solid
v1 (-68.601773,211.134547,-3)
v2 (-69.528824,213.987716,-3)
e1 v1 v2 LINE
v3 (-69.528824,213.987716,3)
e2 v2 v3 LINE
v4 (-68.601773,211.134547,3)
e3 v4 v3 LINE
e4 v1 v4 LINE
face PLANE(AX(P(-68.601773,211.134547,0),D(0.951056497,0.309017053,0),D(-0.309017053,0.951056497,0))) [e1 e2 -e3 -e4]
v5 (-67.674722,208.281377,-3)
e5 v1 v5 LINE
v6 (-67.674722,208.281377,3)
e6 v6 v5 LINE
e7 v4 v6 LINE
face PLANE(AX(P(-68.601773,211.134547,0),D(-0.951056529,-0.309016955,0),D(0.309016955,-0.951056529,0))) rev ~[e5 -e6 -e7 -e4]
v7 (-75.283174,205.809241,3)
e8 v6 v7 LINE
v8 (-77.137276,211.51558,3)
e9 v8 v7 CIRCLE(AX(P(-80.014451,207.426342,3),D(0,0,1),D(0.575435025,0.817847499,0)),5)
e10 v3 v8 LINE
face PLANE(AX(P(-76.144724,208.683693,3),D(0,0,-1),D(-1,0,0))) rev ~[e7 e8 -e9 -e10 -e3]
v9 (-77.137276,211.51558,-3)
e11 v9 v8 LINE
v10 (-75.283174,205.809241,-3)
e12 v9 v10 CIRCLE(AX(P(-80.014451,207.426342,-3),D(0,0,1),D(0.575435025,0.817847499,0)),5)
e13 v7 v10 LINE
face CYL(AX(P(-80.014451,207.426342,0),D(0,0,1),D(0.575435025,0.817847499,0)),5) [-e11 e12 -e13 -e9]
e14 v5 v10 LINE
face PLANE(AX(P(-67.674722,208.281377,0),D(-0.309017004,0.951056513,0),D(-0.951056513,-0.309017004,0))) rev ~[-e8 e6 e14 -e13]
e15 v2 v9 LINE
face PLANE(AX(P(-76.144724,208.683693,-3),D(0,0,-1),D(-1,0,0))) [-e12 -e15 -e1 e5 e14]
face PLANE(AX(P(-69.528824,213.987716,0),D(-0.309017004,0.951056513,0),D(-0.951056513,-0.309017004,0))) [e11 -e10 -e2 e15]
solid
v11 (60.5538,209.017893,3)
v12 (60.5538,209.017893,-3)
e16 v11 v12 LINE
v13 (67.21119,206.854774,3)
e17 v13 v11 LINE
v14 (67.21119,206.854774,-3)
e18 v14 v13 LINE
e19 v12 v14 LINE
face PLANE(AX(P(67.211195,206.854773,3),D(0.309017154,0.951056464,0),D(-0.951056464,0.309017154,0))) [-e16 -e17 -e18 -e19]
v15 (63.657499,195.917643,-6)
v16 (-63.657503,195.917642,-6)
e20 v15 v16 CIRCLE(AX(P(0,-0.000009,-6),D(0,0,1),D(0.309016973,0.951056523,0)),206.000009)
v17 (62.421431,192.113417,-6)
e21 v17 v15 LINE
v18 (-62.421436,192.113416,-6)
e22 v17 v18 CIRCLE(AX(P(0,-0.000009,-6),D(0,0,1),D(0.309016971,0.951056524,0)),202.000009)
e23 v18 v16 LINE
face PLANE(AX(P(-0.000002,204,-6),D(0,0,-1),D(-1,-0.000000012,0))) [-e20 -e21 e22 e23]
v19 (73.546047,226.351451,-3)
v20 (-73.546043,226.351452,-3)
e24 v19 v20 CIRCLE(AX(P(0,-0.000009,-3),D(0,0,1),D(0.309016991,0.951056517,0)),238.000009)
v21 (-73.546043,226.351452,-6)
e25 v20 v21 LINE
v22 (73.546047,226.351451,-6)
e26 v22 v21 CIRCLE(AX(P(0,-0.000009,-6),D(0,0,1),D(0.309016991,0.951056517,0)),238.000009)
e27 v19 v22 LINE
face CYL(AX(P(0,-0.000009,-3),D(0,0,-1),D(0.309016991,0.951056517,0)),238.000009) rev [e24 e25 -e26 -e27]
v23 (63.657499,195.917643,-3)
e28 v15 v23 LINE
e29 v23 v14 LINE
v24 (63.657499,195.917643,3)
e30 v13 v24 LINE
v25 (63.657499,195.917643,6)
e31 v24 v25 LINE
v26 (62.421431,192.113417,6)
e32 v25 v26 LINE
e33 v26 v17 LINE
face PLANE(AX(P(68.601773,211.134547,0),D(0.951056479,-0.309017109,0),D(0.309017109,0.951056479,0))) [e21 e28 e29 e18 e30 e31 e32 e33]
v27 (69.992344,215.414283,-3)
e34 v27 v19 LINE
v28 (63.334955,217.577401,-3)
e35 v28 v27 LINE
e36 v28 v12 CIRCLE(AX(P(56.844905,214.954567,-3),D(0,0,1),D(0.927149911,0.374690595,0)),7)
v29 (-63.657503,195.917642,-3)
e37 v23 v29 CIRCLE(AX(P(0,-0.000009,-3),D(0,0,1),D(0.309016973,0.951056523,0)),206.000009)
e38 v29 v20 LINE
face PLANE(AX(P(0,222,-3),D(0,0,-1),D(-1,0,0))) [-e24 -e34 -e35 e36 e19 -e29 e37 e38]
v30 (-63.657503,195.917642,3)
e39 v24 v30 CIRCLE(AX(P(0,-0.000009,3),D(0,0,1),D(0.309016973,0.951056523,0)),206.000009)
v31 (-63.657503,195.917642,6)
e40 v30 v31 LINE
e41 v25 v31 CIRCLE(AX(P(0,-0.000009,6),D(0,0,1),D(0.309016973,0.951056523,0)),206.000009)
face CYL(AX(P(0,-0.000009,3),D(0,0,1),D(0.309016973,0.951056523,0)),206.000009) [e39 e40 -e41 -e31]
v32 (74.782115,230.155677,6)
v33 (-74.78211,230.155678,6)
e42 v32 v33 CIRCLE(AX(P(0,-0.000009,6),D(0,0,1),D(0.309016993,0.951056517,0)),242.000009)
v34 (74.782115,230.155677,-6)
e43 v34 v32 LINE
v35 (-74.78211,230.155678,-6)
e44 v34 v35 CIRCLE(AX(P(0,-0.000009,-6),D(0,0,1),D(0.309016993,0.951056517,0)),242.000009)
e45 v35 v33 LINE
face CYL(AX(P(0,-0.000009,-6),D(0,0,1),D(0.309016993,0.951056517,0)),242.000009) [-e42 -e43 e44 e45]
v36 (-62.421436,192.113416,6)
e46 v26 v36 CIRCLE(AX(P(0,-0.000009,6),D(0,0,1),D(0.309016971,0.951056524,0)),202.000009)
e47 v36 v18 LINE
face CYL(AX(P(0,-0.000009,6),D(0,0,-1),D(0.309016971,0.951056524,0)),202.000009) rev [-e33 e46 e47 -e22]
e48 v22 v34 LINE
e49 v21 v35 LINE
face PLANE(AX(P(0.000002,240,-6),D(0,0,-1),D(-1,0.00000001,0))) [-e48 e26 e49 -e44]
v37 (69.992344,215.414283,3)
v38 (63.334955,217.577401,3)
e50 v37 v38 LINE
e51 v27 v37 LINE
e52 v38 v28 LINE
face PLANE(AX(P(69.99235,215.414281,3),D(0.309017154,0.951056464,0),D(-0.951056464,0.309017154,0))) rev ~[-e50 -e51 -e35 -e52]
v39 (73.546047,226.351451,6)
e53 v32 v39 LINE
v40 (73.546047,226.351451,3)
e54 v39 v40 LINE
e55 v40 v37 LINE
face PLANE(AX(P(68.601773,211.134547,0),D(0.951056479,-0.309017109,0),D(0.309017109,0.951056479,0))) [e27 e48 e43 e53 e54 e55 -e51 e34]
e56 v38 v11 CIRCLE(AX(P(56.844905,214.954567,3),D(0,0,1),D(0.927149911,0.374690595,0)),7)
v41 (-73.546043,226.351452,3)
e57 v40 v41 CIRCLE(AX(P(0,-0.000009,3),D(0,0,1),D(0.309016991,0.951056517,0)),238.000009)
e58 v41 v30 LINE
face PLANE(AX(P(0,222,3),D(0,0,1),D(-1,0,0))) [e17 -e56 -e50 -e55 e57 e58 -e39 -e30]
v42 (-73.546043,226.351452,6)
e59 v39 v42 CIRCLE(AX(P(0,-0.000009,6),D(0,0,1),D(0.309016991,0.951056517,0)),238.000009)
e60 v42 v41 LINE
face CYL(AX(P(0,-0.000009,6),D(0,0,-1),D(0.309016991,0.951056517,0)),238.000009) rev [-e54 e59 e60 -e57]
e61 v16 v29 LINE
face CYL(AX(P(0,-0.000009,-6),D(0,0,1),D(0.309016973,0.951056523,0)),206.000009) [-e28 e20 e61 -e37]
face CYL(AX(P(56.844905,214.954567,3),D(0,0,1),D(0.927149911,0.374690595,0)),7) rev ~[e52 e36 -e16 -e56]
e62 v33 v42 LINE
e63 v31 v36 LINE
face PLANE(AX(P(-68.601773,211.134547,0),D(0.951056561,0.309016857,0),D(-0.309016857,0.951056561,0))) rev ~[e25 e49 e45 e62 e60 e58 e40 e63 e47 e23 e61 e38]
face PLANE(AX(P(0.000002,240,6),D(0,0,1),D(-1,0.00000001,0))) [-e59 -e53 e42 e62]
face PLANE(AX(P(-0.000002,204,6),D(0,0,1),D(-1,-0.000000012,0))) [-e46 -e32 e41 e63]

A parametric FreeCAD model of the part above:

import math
import FreeCAD as App
import Part
import Sketcher
from FreeCAD import Vector
Q = App.Units.Quantity


def add_polygon(sketch, points):
    """Adds a closed chain of lines whose ends are joined by coincident constraints."""
    first, n = sketch.GeometryCount, len(points)
    for a, b in zip(points, points[1:] + points[:1]):
        sketch.addGeometry(Part.LineSegment(App.Vector(*a, 0), App.Vector(*b, 0)), False)
    for i in range(n):
        sketch.addConstraint(Sketcher.Constraint("Coincident", first + i, 2, first + (i + 1) % n, 1))

doc = App.newDocument("Part")
params = doc.addObject("Spreadsheet::Sheet", "Params")
for row, (alias, value) in enumerate([
    ("sketch1_width", "4 mm"),
    ("sketch1_width2", "32 mm"),
    ("sketch1_height", "12 mm"),
    ("sketch1_height2", "3 mm"),
    ("sketch3_radius", "7 mm"),
    ("sketch3_length", "9 mm"),
    ("sketch3_length2", "7 mm"),
    ("sketch4_radius", "5 mm"),
    ("sketch4_length", "3 mm"),
    ("sketch4_length2", "8 mm"),
    ("pad1_length", "6 mm"),
], start=1):
    params.set(f"A{row}", alias)
    params.set(f"B{row}", "=" + value)
    params.setAlias(f"B{row}", alias)

body = doc.addObject("PartDesign::Body", "Body")

sketch1 = doc.addObject("Sketcher::SketchObject", "Sketch")
body.addObject(sketch1)
sketch1.Placement = App.Placement(Vector(-68.601773, 211.134547, 0), App.Rotation(Vector(-0.309016857, 0.951056561, 0), Vector(0, 0, 1), Vector(0.951056561, 0.309016857, 0), "ZXY"))
add_polygon(sketch1, [(-20, 6), (-20, -6), (-16, -6), (-16, -3), (16, -3), (16, -6), (20, -6), (20, 6), (16, 6), (16, 3), (-16, 3), (-16, 6)])
sketch1.addConstraint([
    Sketcher.Constraint("Vertical", 0),
    Sketcher.Constraint("Horizontal", 1),
    Sketcher.Constraint("Vertical", 2),
    Sketcher.Constraint("Horizontal", 3),
    Sketcher.Constraint("Vertical", 4),
    Sketcher.Constraint("Horizontal", 5),
    Sketcher.Constraint("Vertical", 6),
    Sketcher.Constraint("Horizontal", 7),
    Sketcher.Constraint("Vertical", 8),
    Sketcher.Constraint("Horizontal", 9),
    Sketcher.Constraint("Vertical", 10),
    Sketcher.Constraint("Horizontal", 11),
    Sketcher.Constraint("Symmetric", 0, 2, 6, 2, -1, 1),
    Sketcher.Constraint("Symmetric", 2, 2, 8, 2, -1, 1),
    Sketcher.Constraint("Symmetric", 4, 2, 10, 2, -1, 1),
    Sketcher.Constraint("Symmetric", 1, 2, 4, 2, -2),
    Sketcher.Constraint("DistanceX", 1, 1, 1, 2, Q("4 mm")),
    Sketcher.Constraint("DistanceX", 3, 1, 3, 2, Q("32 mm")),
    Sketcher.Constraint("DistanceY", 0, 2, 0, 1, Q("12 mm")),
    Sketcher.Constraint("DistanceY", 2, 1, 2, 2, Q("3 mm")),
])
sketch1.setExpression("Constraints[28]", "Params.sketch1_width")
sketch1.setExpression("Constraints[29]", "Params.sketch1_width2")
sketch1.setExpression("Constraints[30]", "Params.sketch1_height")
sketch1.setExpression("Constraints[31]", "Params.sketch1_height2")

sketch2 = doc.addObject("Sketcher::SketchObject", "Sketch001")
body.addObject(sketch2)
sketch2.AttachmentSupport = (doc.XY_Plane, [""])
sketch2.MapMode = "FlatFace"
sketch2.addGeometry(Part.ArcOfCircle(Part.Circle(Vector(0, 0, 0), Vector(0, 0, 1), 222), math.radians(72), math.radians(108)), False)
sketch2.addConstraint([
    Sketcher.Constraint("Coincident", 0, 3, -1, 1),
    Sketcher.Constraint("Radius", 0, Q("222.000009 mm")),
    Sketcher.Constraint("DistanceX", -1, 1, 0, 1, Q("68.601773 mm")),
    Sketcher.Constraint("DistanceX", 0, 2, -1, 1, Q("68.601773 mm")),
])
doc.recompute()

additivepipe = doc.addObject("PartDesign::AdditivePipe", "AdditivePipe")
body.addObject(additivepipe)
additivepipe.Profile = sketch1
additivepipe.Spine = (sketch2, ["Edge1"])

sketch3 = doc.addObject("Sketcher::SketchObject", "Sketch002")
body.addObject(sketch3)
sketch3.AttachmentSupport = (doc.XY_Plane, [""])
sketch3.MapMode = "FlatFace"
sketch3.AttachmentOffset = App.Placement(Vector(0, 0, 3), App.Rotation())
sketch3.addGeometry([
    Part.LineSegment(Vector(67, 207, 0), Vector(70, 215, 0)),
    Part.LineSegment(Vector(70, 215, 0), Vector(63, 218, 0)),
    Part.ArcOfCircle(Part.Circle(Vector(57, 215, 0), Vector(0, 0, 1), 7), math.radians(22), math.radians(302)),
    Part.LineSegment(Vector(61, 209, 0), Vector(67, 207, 0)),
], False)
sketch3.addConstraint([
    Sketcher.Constraint("Coincident", 0, 2, 1, 1),
    Sketcher.Constraint("Coincident", 1, 2, 2, 1),
    Sketcher.Constraint("Coincident", 2, 2, 3, 1),
    Sketcher.Constraint("Coincident", 3, 2, 0, 1),
    Sketcher.Constraint("Perpendicular", 0, 1),
    Sketcher.Constraint("Parallel", 1, 3),
    Sketcher.Constraint("Equal", 1, 3),
    Sketcher.Constraint("Radius", 2, Q("7 mm")),
    Sketcher.Constraint("Angle", 0, Q("71.999988 deg")),
    Sketcher.Constraint("Distance", 0, Q("9 mm")),
    Sketcher.Constraint("Distance", 1, Q("7 mm")),
    Sketcher.Constraint("DistanceY", -1, 1, 1, 2, Q("217.577401 mm")),
    Sketcher.Constraint("DistanceX", -1, 1, 2, 2, Q("60.5538 mm")),
])
sketch3.setExpression("Constraints[7]", "Params.sketch3_radius")
sketch3.setExpression("Constraints[9]", "Params.sketch3_length")
sketch3.setExpression("Constraints[10]", "Params.sketch3_length2")
pocket1 = doc.addObject("PartDesign::Pocket", "Pocket")
body.addObject(pocket1)
pocket1.Profile = sketch3
pocket1.Type = "ThroughAll"
body2 = doc.addObject("PartDesign::Body", "Body001")

sketch4 = doc.addObject("Sketcher::SketchObject", "Sketch003")
body2.addObject(sketch4)
sketch4.AttachmentSupport = (doc.getObject("XY_Plane001"), [""])
sketch4.MapMode = "FlatFace"
sketch4.addGeometry([
    Part.LineSegment(Vector(-67.7, 208.3, 0), Vector(-68.6, 211.1, 0)),
    Part.LineSegment(Vector(-68.6, 211.1, 0), Vector(-69.5, 214, 0)),
    Part.LineSegment(Vector(-69.5, 214, 0), Vector(-77.1, 211.5, 0)),
    Part.ArcOfCircle(Part.Circle(Vector(-80, 207.4, 0), Vector(0, 0, 1), 5), math.radians(55), math.radians(341)),
    Part.LineSegment(Vector(-75.3, 205.8, 0), Vector(-67.7, 208.3, 0)),
], False)
sketch4.addConstraint([
    Sketcher.Constraint("Coincident", 0, 2, 1, 1),
    Sketcher.Constraint("Coincident", 1, 2, 2, 1),
    Sketcher.Constraint("Coincident", 2, 2, 3, 1),
    Sketcher.Constraint("Coincident", 3, 2, 4, 1),
    Sketcher.Constraint("Coincident", 4, 2, 0, 1),
    Sketcher.Constraint("Parallel", 0, 1),
    Sketcher.Constraint("Perpendicular", 1, 2),
    Sketcher.Constraint("Parallel", 2, 4),
    Sketcher.Constraint("Equal", 0, 1),
    Sketcher.Constraint("Equal", 2, 4),
    Sketcher.Constraint("Radius", 3, Q("5 mm")),
    Sketcher.Constraint("Angle", 0, Q("107.999998 deg")),
    Sketcher.Constraint("Distance", 0, Q("3 mm")),
    Sketcher.Constraint("Distance", 2, Q("8 mm")),
    Sketcher.Constraint("DistanceX", 3, 3, -1, 1, Q("80.014451 mm")),
    Sketcher.Constraint("DistanceY", -1, 1, 2, 2, Q("211.51558 mm")),
])
sketch4.setExpression("Constraints[10]", "Params.sketch4_radius")
sketch4.setExpression("Constraints[12]", "Params.sketch4_length")
sketch4.setExpression("Constraints[13]", "Params.sketch4_length2")
pad1 = doc.addObject("PartDesign::Pad", "Pad")
body2.addObject(pad1)
pad1.Profile = sketch4
pad1.setExpression("Length", "Params.pad1_length")
pad1.Midplane = True

doc.recompute()
